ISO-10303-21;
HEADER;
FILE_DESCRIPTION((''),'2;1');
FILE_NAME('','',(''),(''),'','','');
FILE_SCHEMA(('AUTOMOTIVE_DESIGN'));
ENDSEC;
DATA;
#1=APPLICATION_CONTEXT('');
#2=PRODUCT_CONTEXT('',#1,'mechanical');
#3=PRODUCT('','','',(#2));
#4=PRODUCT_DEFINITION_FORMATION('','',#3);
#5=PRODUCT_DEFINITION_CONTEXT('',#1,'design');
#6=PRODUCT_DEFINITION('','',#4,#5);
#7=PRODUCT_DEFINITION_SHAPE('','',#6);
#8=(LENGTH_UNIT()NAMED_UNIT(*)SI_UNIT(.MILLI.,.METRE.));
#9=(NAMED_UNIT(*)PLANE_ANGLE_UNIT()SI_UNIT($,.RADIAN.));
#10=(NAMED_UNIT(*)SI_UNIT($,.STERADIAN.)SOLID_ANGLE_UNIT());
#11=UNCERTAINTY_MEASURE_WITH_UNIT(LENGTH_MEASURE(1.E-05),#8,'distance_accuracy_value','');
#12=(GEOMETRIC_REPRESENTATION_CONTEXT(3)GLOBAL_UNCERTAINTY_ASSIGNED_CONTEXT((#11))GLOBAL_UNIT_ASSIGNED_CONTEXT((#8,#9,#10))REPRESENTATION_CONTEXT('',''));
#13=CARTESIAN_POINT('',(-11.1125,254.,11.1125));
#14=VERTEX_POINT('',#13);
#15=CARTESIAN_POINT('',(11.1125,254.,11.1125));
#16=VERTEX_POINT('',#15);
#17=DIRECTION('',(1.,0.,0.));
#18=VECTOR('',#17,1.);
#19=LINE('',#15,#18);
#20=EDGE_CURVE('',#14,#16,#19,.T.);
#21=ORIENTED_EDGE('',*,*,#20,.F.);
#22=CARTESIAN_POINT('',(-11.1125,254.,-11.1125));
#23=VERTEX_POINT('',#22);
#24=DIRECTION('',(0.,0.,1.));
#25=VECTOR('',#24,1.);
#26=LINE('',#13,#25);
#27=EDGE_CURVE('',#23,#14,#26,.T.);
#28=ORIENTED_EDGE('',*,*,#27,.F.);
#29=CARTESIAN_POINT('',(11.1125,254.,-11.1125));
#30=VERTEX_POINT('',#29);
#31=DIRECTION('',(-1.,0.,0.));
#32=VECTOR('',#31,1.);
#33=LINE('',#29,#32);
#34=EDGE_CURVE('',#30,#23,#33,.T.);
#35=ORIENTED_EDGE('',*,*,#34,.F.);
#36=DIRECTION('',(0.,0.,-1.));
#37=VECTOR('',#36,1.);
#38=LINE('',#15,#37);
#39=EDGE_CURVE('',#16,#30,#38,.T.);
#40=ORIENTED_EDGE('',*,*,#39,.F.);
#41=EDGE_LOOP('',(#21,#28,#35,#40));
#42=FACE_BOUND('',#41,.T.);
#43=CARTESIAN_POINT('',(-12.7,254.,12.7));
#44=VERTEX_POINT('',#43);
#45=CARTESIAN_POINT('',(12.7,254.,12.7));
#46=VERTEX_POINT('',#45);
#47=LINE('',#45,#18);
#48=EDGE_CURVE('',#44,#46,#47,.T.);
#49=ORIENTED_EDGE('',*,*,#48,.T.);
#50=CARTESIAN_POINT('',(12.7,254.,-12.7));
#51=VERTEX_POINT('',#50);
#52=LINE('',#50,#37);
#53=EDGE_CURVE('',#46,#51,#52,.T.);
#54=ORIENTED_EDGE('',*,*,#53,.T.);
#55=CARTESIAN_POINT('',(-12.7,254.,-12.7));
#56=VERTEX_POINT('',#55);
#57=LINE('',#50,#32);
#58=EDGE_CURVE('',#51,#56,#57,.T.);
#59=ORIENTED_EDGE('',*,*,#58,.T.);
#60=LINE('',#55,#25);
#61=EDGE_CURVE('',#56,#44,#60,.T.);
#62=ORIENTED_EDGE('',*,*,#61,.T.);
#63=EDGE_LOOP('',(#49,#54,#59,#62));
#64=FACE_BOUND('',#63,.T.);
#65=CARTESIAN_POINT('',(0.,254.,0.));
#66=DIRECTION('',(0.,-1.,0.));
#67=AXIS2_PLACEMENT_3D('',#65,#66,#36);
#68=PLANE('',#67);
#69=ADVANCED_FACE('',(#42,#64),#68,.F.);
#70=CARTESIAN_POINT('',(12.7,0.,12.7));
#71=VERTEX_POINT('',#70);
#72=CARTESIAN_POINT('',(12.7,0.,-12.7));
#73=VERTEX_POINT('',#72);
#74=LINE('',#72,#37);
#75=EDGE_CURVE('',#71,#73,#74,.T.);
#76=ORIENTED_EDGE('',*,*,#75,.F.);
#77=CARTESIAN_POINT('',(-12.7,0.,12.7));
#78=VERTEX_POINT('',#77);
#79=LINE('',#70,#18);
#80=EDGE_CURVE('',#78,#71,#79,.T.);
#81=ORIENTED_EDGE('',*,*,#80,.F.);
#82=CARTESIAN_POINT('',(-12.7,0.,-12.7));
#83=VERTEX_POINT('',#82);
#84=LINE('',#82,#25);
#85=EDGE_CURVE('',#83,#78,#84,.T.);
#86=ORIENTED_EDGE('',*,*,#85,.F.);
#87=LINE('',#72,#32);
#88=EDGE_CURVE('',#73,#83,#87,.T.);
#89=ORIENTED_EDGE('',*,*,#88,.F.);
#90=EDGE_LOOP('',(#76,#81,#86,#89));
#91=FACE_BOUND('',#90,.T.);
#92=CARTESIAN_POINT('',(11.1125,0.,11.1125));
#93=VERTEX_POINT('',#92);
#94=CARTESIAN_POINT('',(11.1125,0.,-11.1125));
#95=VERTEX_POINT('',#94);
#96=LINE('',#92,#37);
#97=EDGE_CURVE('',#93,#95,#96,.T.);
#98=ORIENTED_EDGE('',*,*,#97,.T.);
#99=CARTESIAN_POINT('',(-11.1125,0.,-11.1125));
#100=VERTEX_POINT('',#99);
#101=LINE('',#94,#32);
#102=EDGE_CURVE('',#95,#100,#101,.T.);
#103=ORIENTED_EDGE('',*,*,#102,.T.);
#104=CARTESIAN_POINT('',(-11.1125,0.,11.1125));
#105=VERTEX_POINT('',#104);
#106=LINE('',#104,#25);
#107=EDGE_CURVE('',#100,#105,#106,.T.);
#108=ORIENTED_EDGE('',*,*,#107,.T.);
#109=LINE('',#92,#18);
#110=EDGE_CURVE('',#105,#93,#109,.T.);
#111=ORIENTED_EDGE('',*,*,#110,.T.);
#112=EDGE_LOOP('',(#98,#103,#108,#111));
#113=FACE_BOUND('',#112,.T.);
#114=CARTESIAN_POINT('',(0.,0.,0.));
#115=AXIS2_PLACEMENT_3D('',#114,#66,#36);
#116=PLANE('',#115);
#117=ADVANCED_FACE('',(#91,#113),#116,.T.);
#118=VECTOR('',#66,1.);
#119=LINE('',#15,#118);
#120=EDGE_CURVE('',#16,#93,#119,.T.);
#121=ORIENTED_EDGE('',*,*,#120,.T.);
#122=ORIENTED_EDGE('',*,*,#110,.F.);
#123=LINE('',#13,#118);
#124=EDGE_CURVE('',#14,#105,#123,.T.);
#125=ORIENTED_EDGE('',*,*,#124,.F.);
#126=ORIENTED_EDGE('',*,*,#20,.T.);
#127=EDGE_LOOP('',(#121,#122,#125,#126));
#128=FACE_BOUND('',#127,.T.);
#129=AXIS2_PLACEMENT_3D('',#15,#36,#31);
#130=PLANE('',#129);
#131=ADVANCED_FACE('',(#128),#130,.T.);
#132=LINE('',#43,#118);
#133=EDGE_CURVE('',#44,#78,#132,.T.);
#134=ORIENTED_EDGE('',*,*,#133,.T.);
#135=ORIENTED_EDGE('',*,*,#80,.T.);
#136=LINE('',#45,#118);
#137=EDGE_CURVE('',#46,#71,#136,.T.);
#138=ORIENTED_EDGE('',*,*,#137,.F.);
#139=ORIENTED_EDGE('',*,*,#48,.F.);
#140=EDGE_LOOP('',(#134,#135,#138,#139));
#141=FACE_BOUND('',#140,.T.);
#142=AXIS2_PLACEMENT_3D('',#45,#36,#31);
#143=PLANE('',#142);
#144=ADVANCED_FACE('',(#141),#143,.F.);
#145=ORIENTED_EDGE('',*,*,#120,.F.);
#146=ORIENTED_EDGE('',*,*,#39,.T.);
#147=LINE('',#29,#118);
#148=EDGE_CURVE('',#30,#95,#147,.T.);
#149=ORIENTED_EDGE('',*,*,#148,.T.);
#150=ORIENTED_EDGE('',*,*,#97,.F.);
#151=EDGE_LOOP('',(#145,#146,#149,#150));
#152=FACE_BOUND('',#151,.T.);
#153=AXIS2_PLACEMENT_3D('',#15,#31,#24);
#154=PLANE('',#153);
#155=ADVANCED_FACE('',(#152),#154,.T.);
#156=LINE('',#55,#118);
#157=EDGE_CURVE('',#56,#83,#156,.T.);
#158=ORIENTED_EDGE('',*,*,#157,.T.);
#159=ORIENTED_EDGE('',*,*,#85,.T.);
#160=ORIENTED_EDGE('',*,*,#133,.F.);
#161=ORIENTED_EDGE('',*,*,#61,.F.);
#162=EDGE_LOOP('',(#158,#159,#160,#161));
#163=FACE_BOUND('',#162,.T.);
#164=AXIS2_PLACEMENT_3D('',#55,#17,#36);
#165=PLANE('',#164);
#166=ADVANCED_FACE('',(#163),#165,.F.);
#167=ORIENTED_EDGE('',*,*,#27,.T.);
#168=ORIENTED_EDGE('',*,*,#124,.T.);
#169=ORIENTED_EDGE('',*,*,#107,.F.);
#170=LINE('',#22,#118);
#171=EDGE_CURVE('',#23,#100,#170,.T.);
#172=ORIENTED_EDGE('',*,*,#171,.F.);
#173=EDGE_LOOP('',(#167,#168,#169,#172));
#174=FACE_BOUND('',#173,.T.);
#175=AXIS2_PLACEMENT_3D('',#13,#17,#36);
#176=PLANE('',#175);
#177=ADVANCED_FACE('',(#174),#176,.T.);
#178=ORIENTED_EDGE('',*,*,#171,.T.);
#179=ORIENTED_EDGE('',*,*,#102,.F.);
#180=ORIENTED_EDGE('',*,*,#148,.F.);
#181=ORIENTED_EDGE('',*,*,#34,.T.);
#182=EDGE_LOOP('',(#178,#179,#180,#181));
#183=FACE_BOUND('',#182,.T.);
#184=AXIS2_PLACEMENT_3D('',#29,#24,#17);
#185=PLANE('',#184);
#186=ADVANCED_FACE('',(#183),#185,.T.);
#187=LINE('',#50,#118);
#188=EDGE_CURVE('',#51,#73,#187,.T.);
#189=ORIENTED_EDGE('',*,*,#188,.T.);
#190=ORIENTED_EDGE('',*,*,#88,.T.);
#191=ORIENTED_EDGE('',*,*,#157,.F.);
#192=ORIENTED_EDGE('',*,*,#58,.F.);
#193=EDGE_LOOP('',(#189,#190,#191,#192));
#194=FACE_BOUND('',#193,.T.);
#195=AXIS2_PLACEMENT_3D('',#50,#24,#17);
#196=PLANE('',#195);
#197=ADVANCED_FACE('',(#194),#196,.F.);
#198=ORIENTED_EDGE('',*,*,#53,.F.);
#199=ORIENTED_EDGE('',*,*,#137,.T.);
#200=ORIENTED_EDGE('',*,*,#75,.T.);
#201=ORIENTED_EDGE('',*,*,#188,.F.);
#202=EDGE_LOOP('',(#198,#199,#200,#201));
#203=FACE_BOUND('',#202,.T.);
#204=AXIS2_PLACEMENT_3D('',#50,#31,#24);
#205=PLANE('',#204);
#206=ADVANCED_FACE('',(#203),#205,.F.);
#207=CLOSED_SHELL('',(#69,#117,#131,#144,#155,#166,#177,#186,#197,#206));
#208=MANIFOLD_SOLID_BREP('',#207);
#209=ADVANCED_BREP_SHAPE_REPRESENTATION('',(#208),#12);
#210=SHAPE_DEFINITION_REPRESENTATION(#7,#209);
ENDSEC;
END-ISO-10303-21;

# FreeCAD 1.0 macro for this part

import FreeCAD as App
import Part
import Sketcher
Q = App.Units.Quantity

doc = App.newDocument("Part")
params = doc.addObject("Spreadsheet::Sheet", "Params")
for row, (alias, value) in enumerate([
    ("sketch1_width", "1 in"),
    ("sketch1_width2", "0.875 in"),
    ("pad1_length", "10 in"),
], start=1):
    params.set(f"A{row}", alias)
    params.set(f"B{row}", "=" + value)
    params.setAlias(f"B{row}", alias)

body = doc.addObject("PartDesign::Body", "Body")

sketch1 = doc.addObject("Sketcher::SketchObject", "Sketch")
body.addObject(sketch1)
sketch1.AttachmentSupport = (doc.XZ_Plane, [""])
sketch1.MapMode = "FlatFace"
sketch1.addGeometry([
    Part.LineSegment(App.Vector(-13, -13, 0), App.Vector(-13, 13, 0)),
    Part.LineSegment(App.Vector(-13, 13, 0), App.Vector(13, 13, 0)),
    Part.LineSegment(App.Vector(13, 13, 0), App.Vector(13, -13, 0)),
    Part.LineSegment(App.Vector(13, -13, 0), App.Vector(-13, -13, 0)),
    Part.LineSegment(App.Vector(11, 11, 0), App.Vector(-11, 11, 0)),
    Part.LineSegment(App.Vector(-11, 11, 0), App.Vector(-11, -11, 0)),
    Part.LineSegment(App.Vector(-11, -11, 0), App.Vector(11, -11, 0)),
    Part.LineSegment(App.Vector(11, -11, 0), App.Vector(11, 11, 0)),
], False)
sketch1.addConstraint([
    Sketcher.Constraint("Coincident", 0, 2, 1, 1),
    Sketcher.Constraint("Coincident", 1, 2, 2, 1),
    Sketcher.Constraint("Coincident", 2, 2, 3, 1),
    Sketcher.Constraint("Coincident", 3, 2, 0, 1),
    Sketcher.Constraint("Coincident", 4, 2, 5, 1),
    Sketcher.Constraint("Coincident", 5, 2, 6, 1),
    Sketcher.Constraint("Coincident", 6, 2, 7, 1),
    Sketcher.Constraint("Coincident", 7, 2, 4, 1),
    Sketcher.Constraint("Vertical", 0),
    Sketcher.Constraint("Horizontal", 1),
    Sketcher.Constraint("Vertical", 2),
    Sketcher.Constraint("Horizontal", 3),
    Sketcher.Constraint("Horizontal", 4),
    Sketcher.Constraint("Vertical", 5),
    Sketcher.Constraint("Horizontal", 6),
    Sketcher.Constraint("Vertical", 7),
    Sketcher.Constraint("Symmetric", 0, 2, 2, 2, -1, 1),
    Sketcher.Constraint("Symmetric", 4, 2, 6, 2, -1, 1),
    Sketcher.Constraint("Equal", 3, 0),
    Sketcher.Constraint("Equal", 6, 5),
    Sketcher.Constraint("DistanceX", 1, 1, 1, 2, Q("1 in")),
    Sketcher.Constraint("DistanceX", 4, 2, 4, 1, Q("0.875 in")),
])
sketch1.setExpression("Constraints[20]", "Params.sketch1_width")
sketch1.setExpression("Constraints[21]", "Params.sketch1_width2")
pad1 = doc.addObject("PartDesign::Pad", "Pad")
body.addObject(pad1)
pad1.Profile = sketch1
pad1.setExpression("Length", "Params.pad1_length")
pad1.Reversed = True

doc.recompute()
